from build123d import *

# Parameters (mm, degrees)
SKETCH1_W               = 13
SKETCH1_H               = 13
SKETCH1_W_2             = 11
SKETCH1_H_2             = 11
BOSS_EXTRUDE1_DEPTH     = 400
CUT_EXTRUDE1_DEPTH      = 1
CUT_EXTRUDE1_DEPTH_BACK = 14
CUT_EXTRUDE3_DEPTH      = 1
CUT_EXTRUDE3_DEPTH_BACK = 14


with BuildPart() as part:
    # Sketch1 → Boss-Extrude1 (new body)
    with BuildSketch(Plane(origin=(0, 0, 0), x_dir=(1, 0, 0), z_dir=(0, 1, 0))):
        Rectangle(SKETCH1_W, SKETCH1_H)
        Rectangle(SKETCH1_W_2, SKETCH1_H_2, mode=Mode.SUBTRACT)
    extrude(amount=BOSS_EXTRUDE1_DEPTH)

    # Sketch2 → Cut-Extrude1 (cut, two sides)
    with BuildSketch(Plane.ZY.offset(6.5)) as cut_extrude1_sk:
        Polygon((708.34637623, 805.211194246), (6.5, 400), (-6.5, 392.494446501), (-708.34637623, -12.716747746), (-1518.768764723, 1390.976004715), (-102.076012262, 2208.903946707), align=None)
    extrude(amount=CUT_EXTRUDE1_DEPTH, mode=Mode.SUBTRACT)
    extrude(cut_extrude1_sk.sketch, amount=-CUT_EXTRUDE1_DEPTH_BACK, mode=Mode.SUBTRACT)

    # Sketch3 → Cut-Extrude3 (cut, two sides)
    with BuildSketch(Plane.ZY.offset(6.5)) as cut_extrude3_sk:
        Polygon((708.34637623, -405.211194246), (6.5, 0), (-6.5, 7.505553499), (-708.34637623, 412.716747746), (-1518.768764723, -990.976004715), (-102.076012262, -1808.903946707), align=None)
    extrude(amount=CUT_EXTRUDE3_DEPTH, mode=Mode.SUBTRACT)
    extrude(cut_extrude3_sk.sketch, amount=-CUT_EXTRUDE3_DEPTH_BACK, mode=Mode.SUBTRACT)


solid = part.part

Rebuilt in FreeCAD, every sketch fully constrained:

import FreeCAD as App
import Part
import Sketcher
from FreeCAD import Vector
Q = App.Units.Quantity


def add_polygon(sketch, points):
    """Adds a closed chain of lines whose ends are joined by coincident constraints."""
    first, n = sketch.GeometryCount, len(points)
    for a, b in zip(points, points[1:] + points[:1]):
        sketch.addGeometry(Part.LineSegment(App.Vector(*a, 0), App.Vector(*b, 0)), False)
    for i in range(n):
        sketch.addConstraint(Sketcher.Constraint("Coincident", first + i, 2, first + (i + 1) % n, 1))

doc = App.newDocument("Part")
body = doc.addObject("PartDesign::Body", "Body")

# Sketch on XZ plane
sketch1 = body.newObject("Sketcher::SketchObject", "Sketch")
sketch1.AttachmentSupport = (doc.getObject("XZ_Plane"), [""])
sketch1.MapMode = "FlatFace"
add_polygon(sketch1, [(-6, -6), (-6, 6), (6, 6), (6, -6)])  # lines 0-3
add_polygon(sketch1, [(6, 6), (-6, 6), (-6, -6), (6, -6)])  # lines 4-7
sketch1.addConstraint(Sketcher.Constraint("Vertical", 0))
sketch1.addConstraint(Sketcher.Constraint("Horizontal", 1))
sketch1.addConstraint(Sketcher.Constraint("Vertical", 2))
sketch1.addConstraint(Sketcher.Constraint("Horizontal", 3))
sketch1.addConstraint(Sketcher.Constraint("Horizontal", 4))
sketch1.addConstraint(Sketcher.Constraint("Vertical", 5))
sketch1.addConstraint(Sketcher.Constraint("Horizontal", 6))
sketch1.addConstraint(Sketcher.Constraint("Vertical", 7))
sketch1.addConstraint(Sketcher.Constraint("Symmetric", 0, 2, 2, 2, -1, 1))
sketch1.addConstraint(Sketcher.Constraint("Symmetric", 4, 2, 6, 2, -1, 1))
sketch1.addConstraint(Sketcher.Constraint("Equal", 3, 0))
sketch1.addConstraint(Sketcher.Constraint("Equal", 6, 5))
sketch1.addConstraint(Sketcher.Constraint("DistanceX", 1, 1, 1, 2, 13.0))
sketch1.addConstraint(Sketcher.Constraint("DistanceX", 4, 2, 4, 1, 11.0))
pad1 = body.newObject("PartDesign::Pad", "Pad")
pad1.Profile = sketch1
pad1.Length = 400
pad1.Reversed = True

# Sketch on YZ plane
sketch2 = body.newObject("Sketcher::SketchObject", "Sketch001")
sketch2.AttachmentSupport = (doc.getObject("YZ_Plane"), [""])
sketch2.MapMode = "FlatFace"
sketch2.AttachmentOffset = App.Placement(Vector(0, 0, -6.5), App.Rotation())
add_polygon(sketch2, [(400, 6), (805, 708), (2209, -102), (1391, -1519), (-13, -708), (392, -6)])  # lines 0-5
sketch2.addConstraint(Sketcher.Constraint("Perpendicular", 0, 1))
sketch2.addConstraint(Sketcher.Constraint("Perpendicular", 1, 2))
sketch2.addConstraint(Sketcher.Constraint("Perpendicular", 2, 3))
sketch2.addConstraint(Sketcher.Constraint("Perpendicular", 3, 4))
sketch2.addConstraint(Sketcher.Constraint("Parallel", 4, 5))
sketch2.addConstraint(Sketcher.Constraint("Equal", 0, 4))
sketch2.addConstraint(Sketcher.Constraint("Angle", 0, Q("60 deg")))
sketch2.addConstraint(Sketcher.Constraint("DistanceX", -1, 1, 5, 2, 400.0))
sketch2.addConstraint(Sketcher.Constraint("DistanceY", 4, 2, 5, 2, 13.0))
sketch2.addConstraint(Sketcher.Constraint("DistanceY", 4, 2, -1, 1, 6.5))
sketch2.addConstraint(Sketcher.Constraint("DistanceX", 4, 2, 1, 2, 1816.4095))
sketch2.addConstraint(Sketcher.Constraint("Distance", 0, 810.422388))
pocket1 = body.newObject("PartDesign::Pocket", "Pocket")
pocket1.Profile = sketch2
pocket1.Type = "ThroughAll"
pocket1.Midplane = True

# Sketch on YZ plane
sketch3 = body.newObject("Sketcher::SketchObject", "Sketch002")
sketch3.AttachmentSupport = (doc.getObject("YZ_Plane"), [""])
sketch3.MapMode = "FlatFace"
sketch3.AttachmentOffset = App.Placement(Vector(0, 0, -6.5), App.Rotation())
add_polygon(sketch3, [(-405, 708), (0, 6), (8, -6), (413, -708), (-991, -1519), (-1809, -102)])  # lines 0-5
sketch3.addConstraint(Sketcher.Constraint("PointOnObject", 0, 2, -2))
sketch3.addConstraint(Sketcher.Constraint("Parallel", 0, 1))
sketch3.addConstraint(Sketcher.Constraint("Parallel", 1, 2))
sketch3.addConstraint(Sketcher.Constraint("Perpendicular", 2, 3))
sketch3.addConstraint(Sketcher.Constraint("Perpendicular", 3, 4))
sketch3.addConstraint(Sketcher.Constraint("Perpendicular", 4, 5))
sketch3.addConstraint(Sketcher.Constraint("Equal", 0, 2))
sketch3.addConstraint(Sketcher.Constraint("Angle", 0, Q("-60 deg")))
sketch3.addConstraint(Sketcher.Constraint("DistanceY", 1, 2, 0, 2, 13.0))
sketch3.addConstraint(Sketcher.Constraint("DistanceY", -1, 1, 0, 2, 6.5))
sketch3.addConstraint(Sketcher.Constraint("DistanceX", 4, 2, 1, 2, 1816.4095))
sketch3.addConstraint(Sketcher.Constraint("Distance", 0, 810.422388))
pocket2 = body.newObject("PartDesign::Pocket", "Pocket001")
pocket2.Profile = sketch3
pocket2.Type = "ThroughAll"
pocket2.Midplane = True

doc.recompute()
